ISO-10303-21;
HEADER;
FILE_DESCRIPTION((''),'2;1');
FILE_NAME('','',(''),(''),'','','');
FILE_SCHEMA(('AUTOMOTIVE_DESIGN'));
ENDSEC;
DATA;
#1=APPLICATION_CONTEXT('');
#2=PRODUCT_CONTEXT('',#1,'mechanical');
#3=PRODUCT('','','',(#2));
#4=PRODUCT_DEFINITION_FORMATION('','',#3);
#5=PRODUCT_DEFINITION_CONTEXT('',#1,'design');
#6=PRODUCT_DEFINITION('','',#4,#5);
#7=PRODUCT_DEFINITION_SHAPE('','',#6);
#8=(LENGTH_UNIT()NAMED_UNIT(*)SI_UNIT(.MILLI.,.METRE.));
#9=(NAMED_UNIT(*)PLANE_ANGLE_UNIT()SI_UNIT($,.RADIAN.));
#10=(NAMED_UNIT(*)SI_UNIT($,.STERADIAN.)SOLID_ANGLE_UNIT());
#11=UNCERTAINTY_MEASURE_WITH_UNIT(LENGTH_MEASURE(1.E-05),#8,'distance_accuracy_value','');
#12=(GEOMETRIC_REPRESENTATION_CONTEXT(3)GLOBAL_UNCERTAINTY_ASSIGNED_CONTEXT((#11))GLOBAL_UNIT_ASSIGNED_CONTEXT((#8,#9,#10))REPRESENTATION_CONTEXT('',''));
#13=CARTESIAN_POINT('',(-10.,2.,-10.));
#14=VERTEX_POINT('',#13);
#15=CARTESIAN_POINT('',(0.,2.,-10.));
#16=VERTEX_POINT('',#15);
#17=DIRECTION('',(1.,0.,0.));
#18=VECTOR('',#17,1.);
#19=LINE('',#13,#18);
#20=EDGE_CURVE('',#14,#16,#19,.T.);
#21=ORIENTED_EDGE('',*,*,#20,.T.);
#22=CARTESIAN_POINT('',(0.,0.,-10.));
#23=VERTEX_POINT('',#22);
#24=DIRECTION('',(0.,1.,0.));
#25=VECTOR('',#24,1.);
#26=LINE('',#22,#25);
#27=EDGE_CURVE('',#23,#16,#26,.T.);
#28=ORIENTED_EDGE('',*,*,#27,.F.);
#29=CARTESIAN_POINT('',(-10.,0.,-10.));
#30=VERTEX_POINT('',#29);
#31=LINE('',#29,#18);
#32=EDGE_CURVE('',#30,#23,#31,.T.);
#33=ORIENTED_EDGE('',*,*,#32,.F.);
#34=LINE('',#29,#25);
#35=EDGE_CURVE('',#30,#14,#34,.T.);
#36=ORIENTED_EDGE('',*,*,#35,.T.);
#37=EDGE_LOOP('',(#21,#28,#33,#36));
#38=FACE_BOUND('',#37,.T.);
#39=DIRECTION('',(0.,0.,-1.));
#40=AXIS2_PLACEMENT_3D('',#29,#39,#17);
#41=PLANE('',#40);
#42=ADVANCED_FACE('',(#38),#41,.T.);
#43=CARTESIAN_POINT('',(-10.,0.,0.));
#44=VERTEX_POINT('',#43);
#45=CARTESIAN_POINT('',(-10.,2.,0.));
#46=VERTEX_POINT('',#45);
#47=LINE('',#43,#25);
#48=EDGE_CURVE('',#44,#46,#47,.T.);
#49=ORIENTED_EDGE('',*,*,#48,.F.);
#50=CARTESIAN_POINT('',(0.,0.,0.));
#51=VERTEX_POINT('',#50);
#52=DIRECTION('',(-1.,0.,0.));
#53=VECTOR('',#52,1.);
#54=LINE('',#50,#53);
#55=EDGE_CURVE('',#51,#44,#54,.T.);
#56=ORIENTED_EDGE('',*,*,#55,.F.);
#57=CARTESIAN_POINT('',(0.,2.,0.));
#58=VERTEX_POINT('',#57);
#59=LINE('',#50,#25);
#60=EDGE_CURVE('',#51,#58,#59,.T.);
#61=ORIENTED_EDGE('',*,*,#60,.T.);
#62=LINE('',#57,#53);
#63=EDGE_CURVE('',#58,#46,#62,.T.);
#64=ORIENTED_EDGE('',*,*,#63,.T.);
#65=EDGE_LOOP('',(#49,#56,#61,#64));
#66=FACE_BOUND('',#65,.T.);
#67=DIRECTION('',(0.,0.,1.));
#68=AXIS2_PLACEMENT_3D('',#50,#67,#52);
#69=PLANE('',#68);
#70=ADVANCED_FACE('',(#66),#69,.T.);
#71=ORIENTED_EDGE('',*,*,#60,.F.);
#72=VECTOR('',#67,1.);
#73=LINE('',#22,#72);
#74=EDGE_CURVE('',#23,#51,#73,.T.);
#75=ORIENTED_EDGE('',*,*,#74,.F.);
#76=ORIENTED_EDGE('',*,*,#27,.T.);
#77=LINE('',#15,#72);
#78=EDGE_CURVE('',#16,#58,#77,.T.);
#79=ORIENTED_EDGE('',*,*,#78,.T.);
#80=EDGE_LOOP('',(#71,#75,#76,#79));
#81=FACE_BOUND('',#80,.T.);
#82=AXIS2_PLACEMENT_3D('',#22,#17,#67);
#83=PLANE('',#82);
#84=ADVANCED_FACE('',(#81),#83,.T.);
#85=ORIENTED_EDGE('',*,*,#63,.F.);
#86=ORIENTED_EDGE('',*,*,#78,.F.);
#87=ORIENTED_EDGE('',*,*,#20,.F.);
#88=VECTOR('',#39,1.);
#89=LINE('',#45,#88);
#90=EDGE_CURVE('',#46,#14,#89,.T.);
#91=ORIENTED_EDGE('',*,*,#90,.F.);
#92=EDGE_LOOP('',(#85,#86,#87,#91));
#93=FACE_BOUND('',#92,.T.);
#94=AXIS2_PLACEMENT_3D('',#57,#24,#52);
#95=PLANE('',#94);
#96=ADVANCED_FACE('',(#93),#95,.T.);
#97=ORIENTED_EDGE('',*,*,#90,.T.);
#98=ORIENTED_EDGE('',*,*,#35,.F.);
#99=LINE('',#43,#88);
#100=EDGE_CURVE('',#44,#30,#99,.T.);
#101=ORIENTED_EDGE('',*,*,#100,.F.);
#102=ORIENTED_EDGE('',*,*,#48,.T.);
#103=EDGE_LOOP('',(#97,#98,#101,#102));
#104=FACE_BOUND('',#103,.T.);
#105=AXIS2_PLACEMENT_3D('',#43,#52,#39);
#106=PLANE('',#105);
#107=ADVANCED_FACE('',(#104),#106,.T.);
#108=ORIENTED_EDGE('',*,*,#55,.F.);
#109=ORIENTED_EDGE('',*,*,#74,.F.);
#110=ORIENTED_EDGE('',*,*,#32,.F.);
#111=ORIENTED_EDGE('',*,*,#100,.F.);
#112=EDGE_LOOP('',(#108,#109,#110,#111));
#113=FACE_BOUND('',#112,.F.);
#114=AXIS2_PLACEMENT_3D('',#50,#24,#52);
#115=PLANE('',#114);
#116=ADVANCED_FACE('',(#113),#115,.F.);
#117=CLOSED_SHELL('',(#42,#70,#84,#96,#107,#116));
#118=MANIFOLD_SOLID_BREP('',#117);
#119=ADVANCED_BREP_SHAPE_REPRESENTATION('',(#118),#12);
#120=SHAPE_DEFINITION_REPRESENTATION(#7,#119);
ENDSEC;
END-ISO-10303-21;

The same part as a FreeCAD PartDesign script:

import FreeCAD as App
import Part
import Sketcher

V = App.Vector

doc = App.newDocument("Part")
params = doc.addObject("Spreadsheet::Sheet", "Params")
for row, (alias, value) in enumerate([
    ("sketch1_width", "10 mm"),
    ("pad1_length", "2 mm"),
], start=1):
    params.set(f"A{row}", alias)
    params.set(f"B{row}", "=" + value)
    params.setAlias(f"B{row}", alias)

body = doc.addObject("PartDesign::Body", "Body")

# Sketch on XZ plane
sketch1 = body.newObject("Sketcher::SketchObject", "Sketch")
sketch1.AttachmentSupport = (doc.getObject("XZ_Plane"), [""])
sketch1.MapMode = "FlatFace"
sketch1.addGeometry([
    Part.LineSegment(V(-10, 0, 0), V(0, 0, 0)),
    Part.LineSegment(V(0, 0, 0), V(0, -10, 0)),
    Part.LineSegment(V(0, -10, 0), V(-10, -10, 0)),
    Part.LineSegment(V(-10, -10, 0), V(-10, 0, 0)),
], False)
sketch1.addConstraint([
    Sketcher.Constraint("Coincident", 0, 2, 1, 1),
    Sketcher.Constraint("Coincident", 1, 2, 2, 1),
    Sketcher.Constraint("Coincident", 2, 2, 3, 1),
    Sketcher.Constraint("Coincident", 3, 2, 0, 1),
    Sketcher.Constraint("Horizontal", 0),
    Sketcher.Constraint("Vertical", 1),
    Sketcher.Constraint("Horizontal", 2),
    Sketcher.Constraint("Vertical", 3),
    Sketcher.Constraint("Coincident", 0, 2, -1, 1),
    Sketcher.Constraint("Equal", 2, 1),
    Sketcher.Constraint("DistanceX", 0, 1, 0, 2, 10.0),
])
sketch1.setExpression("Constraints[10]", "Params.sketch1_width")
pad1 = body.newObject("PartDesign::Pad", "Pad")
pad1.Profile = sketch1
pad1.setExpression("Length", "Params.pad1_length")
pad1.Reversed = True

doc.recompute()
